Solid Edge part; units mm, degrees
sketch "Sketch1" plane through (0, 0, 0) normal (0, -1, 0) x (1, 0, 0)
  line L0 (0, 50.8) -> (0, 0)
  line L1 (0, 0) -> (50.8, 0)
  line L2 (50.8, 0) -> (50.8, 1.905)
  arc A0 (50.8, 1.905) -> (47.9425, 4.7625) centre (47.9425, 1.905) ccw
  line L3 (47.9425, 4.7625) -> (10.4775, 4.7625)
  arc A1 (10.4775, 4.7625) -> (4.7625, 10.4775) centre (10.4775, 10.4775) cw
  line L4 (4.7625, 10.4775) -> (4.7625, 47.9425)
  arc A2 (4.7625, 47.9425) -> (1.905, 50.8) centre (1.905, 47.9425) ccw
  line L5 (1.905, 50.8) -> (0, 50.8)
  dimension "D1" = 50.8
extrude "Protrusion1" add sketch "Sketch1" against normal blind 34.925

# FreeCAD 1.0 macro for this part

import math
import FreeCAD as App
import Part
import Sketcher
from FreeCAD import Vector
Q = App.Units.Quantity

doc = App.newDocument("Part")
body = doc.addObject("PartDesign::Body", "Body")

sketch1 = doc.addObject("Sketcher::SketchObject", "Sketch")
body.addObject(sketch1)
sketch1.AttachmentSupport = (doc.XZ_Plane, [""])
sketch1.MapMode = "FlatFace"
sketch1.addGeometry(Part.LineSegment(Vector(1.905, 50.8, 0), Vector(0, 50.8, 0)), False)
sketch1.addGeometry(Part.LineSegment(Vector(0, 50.8, 0), Vector(0, 0, 0)), False)
sketch1.addGeometry(Part.LineSegment(Vector(0, 0, 0), Vector(50.8, 0, 0)), False)
sketch1.addGeometry(Part.LineSegment(Vector(50.8, 0, 0), Vector(50.8, 1.905, 0)), False)
sketch1.addGeometry(Part.ArcOfCircle(Part.Circle(Vector(47.9425, 1.905, 0), Vector(0, 0, 1), 2.8575), math.radians(0), math.radians(90)), False)
sketch1.addGeometry(Part.LineSegment(Vector(47.9425, 4.7625, 0), Vector(10.4775, 4.7625, 0)), False)
sketch1.addGeometry(Part.ArcOfCircle(Part.Circle(Vector(10.4775, 10.4775, 0), Vector(0, 0, 1), 5.715), math.radians(180), math.radians(270)), False)
sketch1.addGeometry(Part.LineSegment(Vector(4.7625, 10.4775, 0), Vector(4.7625, 47.9425, 0)), False)
sketch1.addGeometry(Part.ArcOfCircle(Part.Circle(Vector(1.905, 47.9425, 0), Vector(0, 0, 1), 2.8575), math.radians(0), math.radians(90)), False)
sketch1.addConstraint(Sketcher.Constraint("Coincident", 0, 2, 1, 1))
sketch1.addConstraint(Sketcher.Constraint("Coincident", 1, 2, 2, 1))
sketch1.addConstraint(Sketcher.Constraint("Coincident", 2, 2, 3, 1))
sketch1.addConstraint(Sketcher.Constraint("Tangent", 3, 2, 4, 1))
sketch1.addConstraint(Sketcher.Constraint("Tangent", 4, 2, 5, 1))
sketch1.addConstraint(Sketcher.Constraint("Tangent", 5, 2, 6, 2))
sketch1.addConstraint(Sketcher.Constraint("Tangent", 6, 1, 7, 1))
sketch1.addConstraint(Sketcher.Constraint("Tangent", 7, 2, 8, 1))
sketch1.addConstraint(Sketcher.Constraint("Tangent", 8, 2, 0, 1))
sketch1.addConstraint(Sketcher.Constraint("Horizontal", 0))
sketch1.addConstraint(Sketcher.Constraint("Vertical", 1))
sketch1.addConstraint(Sketcher.Constraint("Horizontal", 2))
sketch1.addConstraint(Sketcher.Constraint("Vertical", 3))
sketch1.addConstraint(Sketcher.Constraint("Horizontal", 5))
sketch1.addConstraint(Sketcher.Constraint("Vertical", 7))
sketch1.addConstraint(Sketcher.Constraint("Coincident", 1, 2, -1, 1))
sketch1.addConstraint(Sketcher.Constraint("Equal", 4, 8))
sketch1.addConstraint(Sketcher.Constraint("Equal", 2, 1))
sketch1.addConstraint(Sketcher.Constraint("Equal", 0, 3))
sketch1.addConstraint(Sketcher.Constraint("DistanceX", 2, 1, 2, 2, Q("2 in")))
sketch1.addConstraint(Sketcher.Constraint("Radius", 6, Q("0.225 in")))
sketch1.addConstraint(Sketcher.Constraint("Radius", 4, Q("0.1125 in")))
sketch1.addConstraint(Sketcher.Constraint("DistanceY", 5, 2, 7, 2, Q("1.7 in")))
pad1 = doc.addObject("PartDesign::Pad", "Pad")
body.addObject(pad1)
pad1.Profile = sketch1
pad1.Length = Q("1.375 in")
pad1.Reversed = True

doc.recompute()
